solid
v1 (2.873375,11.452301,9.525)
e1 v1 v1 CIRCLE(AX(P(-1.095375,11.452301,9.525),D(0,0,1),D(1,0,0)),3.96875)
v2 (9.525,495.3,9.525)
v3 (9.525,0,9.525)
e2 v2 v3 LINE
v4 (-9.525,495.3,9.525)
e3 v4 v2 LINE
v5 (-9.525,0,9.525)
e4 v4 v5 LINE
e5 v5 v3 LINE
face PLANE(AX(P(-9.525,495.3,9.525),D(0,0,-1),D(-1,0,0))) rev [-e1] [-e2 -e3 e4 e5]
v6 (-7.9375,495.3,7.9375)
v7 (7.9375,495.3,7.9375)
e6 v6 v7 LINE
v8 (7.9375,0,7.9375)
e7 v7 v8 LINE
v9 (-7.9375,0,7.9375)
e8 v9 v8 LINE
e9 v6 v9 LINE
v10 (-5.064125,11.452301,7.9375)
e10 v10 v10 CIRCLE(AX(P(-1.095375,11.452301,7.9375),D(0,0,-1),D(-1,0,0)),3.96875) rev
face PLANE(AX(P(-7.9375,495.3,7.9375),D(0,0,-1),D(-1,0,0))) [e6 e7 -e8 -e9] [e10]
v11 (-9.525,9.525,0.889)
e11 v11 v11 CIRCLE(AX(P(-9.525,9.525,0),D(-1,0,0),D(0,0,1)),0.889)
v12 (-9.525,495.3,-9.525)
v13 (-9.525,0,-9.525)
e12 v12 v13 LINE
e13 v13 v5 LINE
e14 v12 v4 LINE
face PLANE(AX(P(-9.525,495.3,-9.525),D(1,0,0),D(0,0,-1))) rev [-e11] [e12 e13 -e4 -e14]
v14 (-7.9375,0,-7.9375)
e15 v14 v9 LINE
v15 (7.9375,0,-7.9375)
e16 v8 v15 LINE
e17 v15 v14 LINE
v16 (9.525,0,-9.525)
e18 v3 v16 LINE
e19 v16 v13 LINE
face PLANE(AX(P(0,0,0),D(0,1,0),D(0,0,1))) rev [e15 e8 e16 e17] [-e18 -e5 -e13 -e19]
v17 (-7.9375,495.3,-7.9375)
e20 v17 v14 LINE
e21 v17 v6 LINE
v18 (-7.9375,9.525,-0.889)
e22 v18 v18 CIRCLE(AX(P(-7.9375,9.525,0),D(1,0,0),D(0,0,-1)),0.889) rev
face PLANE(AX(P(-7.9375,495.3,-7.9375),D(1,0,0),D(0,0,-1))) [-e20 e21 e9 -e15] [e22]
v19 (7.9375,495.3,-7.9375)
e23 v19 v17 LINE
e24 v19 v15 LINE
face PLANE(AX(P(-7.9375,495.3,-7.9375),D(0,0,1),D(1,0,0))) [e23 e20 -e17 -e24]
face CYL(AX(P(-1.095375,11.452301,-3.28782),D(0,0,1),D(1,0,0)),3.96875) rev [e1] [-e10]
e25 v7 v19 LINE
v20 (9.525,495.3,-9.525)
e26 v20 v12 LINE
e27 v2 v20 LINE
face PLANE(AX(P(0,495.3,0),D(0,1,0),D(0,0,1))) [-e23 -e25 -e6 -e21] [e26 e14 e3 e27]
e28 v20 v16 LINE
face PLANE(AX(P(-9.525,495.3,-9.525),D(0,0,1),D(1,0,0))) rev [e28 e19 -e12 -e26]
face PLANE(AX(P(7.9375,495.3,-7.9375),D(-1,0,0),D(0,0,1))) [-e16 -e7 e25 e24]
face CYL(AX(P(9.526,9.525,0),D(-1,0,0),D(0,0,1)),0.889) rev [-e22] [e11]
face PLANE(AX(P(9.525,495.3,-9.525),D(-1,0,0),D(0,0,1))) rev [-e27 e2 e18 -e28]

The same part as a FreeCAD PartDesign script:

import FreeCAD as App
import Part
import Sketcher
from FreeCAD import Vector
Q = App.Units.Quantity


def add_polygon(sketch, points):
    """Adds a closed chain of lines whose ends are joined by coincident constraints."""
    first, n = sketch.GeometryCount, len(points)
    for a, b in zip(points, points[1:] + points[:1]):
        sketch.addGeometry(Part.LineSegment(App.Vector(*a, 0), App.Vector(*b, 0)), False)
    for i in range(n):
        sketch.addConstraint(Sketcher.Constraint("Coincident", first + i, 2, first + (i + 1) % n, 1))

doc = App.newDocument("Part")
params = doc.addObject("Spreadsheet::Sheet", "Params")
for row, (alias, value) in enumerate([
    ("sketch1_width", "0.75 in"),
    ("sketch1_width2", "0.625 in"),
    ("pad1_length", "19.5 in"),
    ("sketch2_diameter", "0.3125 in"),
    ("pocket1_length", "0.0625 in"),
    ("sketch3_diameter", "0.07 in"),
], start=1):
    params.set(f"A{row}", alias)
    params.set(f"B{row}", "=" + value)
    params.setAlias(f"B{row}", alias)

body = doc.addObject("PartDesign::Body", "Body")

sketch1 = doc.addObject("Sketcher::SketchObject", "Sketch")
body.addObject(sketch1)
sketch1.AttachmentSupport = (doc.XZ_Plane, [""])
sketch1.MapMode = "FlatFace"
add_polygon(sketch1, [(-10, -10), (-10, 10), (10, 10), (10, -10)])
add_polygon(sketch1, [(8, 8), (-8, 8), (-8, -8), (8, -8)])
sketch1.addConstraint(Sketcher.Constraint("Vertical", 0))
sketch1.addConstraint(Sketcher.Constraint("Horizontal", 1))
sketch1.addConstraint(Sketcher.Constraint("Vertical", 2))
sketch1.addConstraint(Sketcher.Constraint("Horizontal", 3))
sketch1.addConstraint(Sketcher.Constraint("Horizontal", 4))
sketch1.addConstraint(Sketcher.Constraint("Vertical", 5))
sketch1.addConstraint(Sketcher.Constraint("Horizontal", 6))
sketch1.addConstraint(Sketcher.Constraint("Vertical", 7))
sketch1.addConstraint(Sketcher.Constraint("Symmetric", 0, 2, 2, 2, -1, 1))
sketch1.addConstraint(Sketcher.Constraint("Symmetric", 4, 2, 6, 2, -1, 1))
sketch1.addConstraint(Sketcher.Constraint("Equal", 3, 0))
sketch1.addConstraint(Sketcher.Constraint("Equal", 6, 5))
sketch1.addConstraint(Sketcher.Constraint("DistanceX", 1, 1, 1, 2, Q("0.75 in")))
sketch1.addConstraint(Sketcher.Constraint("DistanceX", 4, 2, 4, 1, Q("0.625 in")))
sketch1.setExpression("Constraints[20]", "Params.sketch1_width")
sketch1.setExpression("Constraints[21]", "Params.sketch1_width2")
pad1 = doc.addObject("PartDesign::Pad", "Pad")
body.addObject(pad1)
pad1.Profile = sketch1
pad1.setExpression("Length", "Params.pad1_length")
pad1.Reversed = True

sketch2 = doc.addObject("Sketcher::SketchObject", "Sketch001")
body.addObject(sketch2)
sketch2.AttachmentSupport = (doc.XY_Plane, [""])
sketch2.MapMode = "FlatFace"
sketch2.AttachmentOffset = App.Placement(Vector(0, 0, 0.375 * 25.4), App.Rotation())
sketch2.addGeometry(Part.Circle(Vector(-1.1, 11.5, 0), Vector(0, 0, 1), 4), False)
sketch2.addConstraint(Sketcher.Constraint("Diameter", 0, Q("0.3125 in")))
sketch2.addConstraint(Sketcher.Constraint("DistanceY", -1, 1, 0, 3, 11.452301))
sketch2.addConstraint(Sketcher.Constraint("DistanceX", 0, 3, -1, 1, 1.095375))
sketch2.setExpression("Constraints[0]", "Params.sketch2_diameter")
pocket1 = doc.addObject("PartDesign::Pocket", "Pocket")
body.addObject(pocket1)
pocket1.Profile = sketch2
pocket1.setExpression("Length", "Params.pocket1_length")

sketch3 = doc.addObject("Sketcher::SketchObject", "Sketch002")
body.addObject(sketch3)
sketch3.AttachmentSupport = (doc.YZ_Plane, [""])
sketch3.MapMode = "FlatFace"
sketch3.AttachmentOffset = App.Placement(Vector(0, 0, -0.375 * 25.4), App.Rotation())
sketch3.addGeometry(Part.Circle(Vector(9.5, 0, 0), Vector(0, 0, 1), 0.9), False)
sketch3.addConstraint(Sketcher.Constraint("PointOnObject", 0, 3, -1))
sketch3.addConstraint(Sketcher.Constraint("Diameter", 0, Q("0.07 in")))
sketch3.addConstraint(Sketcher.Constraint("DistanceX", -1, 1, 0, 3, Q("0.375 in")))
sketch3.setExpression("Constraints[1]", "Params.sketch3_diameter")
pocket2 = doc.addObject("PartDesign::Pocket", "Pocket001")
body.addObject(pocket2)
pocket2.Profile = sketch3
pocket2.Type = "UpToFirst"
pocket2.Reversed = True

doc.recompute()
